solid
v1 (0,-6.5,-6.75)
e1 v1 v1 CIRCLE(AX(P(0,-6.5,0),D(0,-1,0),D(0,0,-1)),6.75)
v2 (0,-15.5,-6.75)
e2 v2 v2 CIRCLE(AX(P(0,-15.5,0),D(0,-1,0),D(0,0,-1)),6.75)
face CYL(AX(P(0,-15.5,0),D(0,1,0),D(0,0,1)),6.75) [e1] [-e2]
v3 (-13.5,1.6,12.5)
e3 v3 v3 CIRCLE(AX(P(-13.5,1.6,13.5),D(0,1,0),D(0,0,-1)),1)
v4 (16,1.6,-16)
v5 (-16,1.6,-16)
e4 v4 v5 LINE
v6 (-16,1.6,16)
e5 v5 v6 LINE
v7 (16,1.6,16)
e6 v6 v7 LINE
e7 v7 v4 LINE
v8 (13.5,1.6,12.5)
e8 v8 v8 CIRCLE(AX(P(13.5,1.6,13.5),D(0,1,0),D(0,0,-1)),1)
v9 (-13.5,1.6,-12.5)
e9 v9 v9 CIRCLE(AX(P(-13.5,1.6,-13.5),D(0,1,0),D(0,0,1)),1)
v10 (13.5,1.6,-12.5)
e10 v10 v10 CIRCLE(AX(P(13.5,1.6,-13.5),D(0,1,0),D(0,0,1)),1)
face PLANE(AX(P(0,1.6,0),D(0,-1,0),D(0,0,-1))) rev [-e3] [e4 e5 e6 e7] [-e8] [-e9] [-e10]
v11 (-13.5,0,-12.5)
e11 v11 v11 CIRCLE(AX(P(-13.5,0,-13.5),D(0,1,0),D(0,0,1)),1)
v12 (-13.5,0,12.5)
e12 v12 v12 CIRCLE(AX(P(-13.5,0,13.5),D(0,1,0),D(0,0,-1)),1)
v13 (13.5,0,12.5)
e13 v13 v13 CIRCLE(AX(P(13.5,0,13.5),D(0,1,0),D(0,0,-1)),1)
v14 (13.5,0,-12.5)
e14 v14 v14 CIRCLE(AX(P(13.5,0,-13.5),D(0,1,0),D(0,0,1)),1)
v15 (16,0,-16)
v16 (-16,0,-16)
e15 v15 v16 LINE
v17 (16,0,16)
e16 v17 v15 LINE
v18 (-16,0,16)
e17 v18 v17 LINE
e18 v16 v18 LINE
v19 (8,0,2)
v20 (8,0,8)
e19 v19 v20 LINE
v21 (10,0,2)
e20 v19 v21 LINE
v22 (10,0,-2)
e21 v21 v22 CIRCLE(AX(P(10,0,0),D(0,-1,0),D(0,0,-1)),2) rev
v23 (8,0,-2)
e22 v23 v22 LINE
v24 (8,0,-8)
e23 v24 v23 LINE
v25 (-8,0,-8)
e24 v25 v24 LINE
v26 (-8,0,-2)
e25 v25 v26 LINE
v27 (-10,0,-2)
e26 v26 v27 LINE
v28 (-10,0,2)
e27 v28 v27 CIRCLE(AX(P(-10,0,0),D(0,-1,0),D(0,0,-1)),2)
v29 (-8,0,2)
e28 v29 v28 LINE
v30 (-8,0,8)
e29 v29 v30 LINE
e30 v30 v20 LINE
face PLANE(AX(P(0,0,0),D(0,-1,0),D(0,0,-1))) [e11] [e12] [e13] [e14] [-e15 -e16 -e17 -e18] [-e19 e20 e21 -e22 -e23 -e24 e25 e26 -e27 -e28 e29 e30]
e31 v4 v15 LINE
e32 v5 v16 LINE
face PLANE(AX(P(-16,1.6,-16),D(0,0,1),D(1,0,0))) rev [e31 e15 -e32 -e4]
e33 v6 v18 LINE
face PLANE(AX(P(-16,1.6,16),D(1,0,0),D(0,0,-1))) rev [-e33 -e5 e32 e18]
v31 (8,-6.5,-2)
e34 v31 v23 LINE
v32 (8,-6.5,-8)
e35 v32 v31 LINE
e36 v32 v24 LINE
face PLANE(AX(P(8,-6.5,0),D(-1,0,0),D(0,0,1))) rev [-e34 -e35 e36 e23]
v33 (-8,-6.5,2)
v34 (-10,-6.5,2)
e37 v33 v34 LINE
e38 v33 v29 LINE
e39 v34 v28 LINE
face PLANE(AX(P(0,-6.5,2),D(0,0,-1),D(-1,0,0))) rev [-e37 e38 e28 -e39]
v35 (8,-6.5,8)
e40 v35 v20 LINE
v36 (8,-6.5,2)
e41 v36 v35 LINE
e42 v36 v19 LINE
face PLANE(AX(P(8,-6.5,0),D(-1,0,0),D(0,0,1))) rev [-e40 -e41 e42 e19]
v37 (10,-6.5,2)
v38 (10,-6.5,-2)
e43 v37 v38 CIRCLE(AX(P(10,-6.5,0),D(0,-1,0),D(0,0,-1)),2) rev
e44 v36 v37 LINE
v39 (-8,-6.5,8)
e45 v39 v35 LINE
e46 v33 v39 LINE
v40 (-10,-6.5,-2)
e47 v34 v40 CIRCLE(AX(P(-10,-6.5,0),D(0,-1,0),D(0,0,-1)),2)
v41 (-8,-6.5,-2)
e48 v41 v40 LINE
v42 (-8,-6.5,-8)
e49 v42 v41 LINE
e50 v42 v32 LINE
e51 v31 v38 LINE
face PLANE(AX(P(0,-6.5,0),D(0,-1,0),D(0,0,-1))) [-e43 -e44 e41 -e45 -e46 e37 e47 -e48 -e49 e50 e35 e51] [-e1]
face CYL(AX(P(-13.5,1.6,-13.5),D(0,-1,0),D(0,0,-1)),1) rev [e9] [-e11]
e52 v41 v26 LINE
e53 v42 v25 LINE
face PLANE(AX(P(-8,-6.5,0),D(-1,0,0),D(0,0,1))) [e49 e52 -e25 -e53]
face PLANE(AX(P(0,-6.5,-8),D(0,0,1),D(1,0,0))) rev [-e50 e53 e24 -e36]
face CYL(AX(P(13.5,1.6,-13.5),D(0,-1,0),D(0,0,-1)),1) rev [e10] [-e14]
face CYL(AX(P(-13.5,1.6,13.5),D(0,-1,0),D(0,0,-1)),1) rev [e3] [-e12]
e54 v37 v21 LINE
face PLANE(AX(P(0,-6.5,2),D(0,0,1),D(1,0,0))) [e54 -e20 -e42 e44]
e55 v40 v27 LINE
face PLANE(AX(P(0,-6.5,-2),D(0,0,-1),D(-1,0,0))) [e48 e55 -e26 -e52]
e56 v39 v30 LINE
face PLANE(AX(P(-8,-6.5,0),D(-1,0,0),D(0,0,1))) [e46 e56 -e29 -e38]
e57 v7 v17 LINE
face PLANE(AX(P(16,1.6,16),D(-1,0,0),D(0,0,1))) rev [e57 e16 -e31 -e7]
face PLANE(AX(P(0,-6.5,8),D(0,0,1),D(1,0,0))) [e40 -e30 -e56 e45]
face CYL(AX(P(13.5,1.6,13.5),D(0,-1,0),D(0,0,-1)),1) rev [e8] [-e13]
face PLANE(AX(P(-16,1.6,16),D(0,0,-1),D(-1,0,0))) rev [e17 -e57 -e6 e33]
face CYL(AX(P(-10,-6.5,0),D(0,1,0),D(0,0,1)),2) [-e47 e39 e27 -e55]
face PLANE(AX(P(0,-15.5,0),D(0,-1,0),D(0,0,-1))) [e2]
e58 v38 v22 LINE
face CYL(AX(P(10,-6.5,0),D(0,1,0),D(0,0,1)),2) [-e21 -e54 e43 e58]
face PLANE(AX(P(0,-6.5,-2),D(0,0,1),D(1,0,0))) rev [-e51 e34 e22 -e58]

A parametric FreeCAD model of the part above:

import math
import FreeCAD as App
import Part
import Sketcher
Q = App.Units.Quantity


def add_polygon(sketch, points):
    """Adds a closed chain of lines whose ends are joined by coincident constraints."""
    first, n = sketch.GeometryCount, len(points)
    for a, b in zip(points, points[1:] + points[:1]):
        sketch.addGeometry(Part.LineSegment(App.Vector(*a, 0), App.Vector(*b, 0)), False)
    for i in range(n):
        sketch.addConstraint(Sketcher.Constraint("Coincident", first + i, 2, first + (i + 1) % n, 1))

doc = App.newDocument("Part")
body = doc.addObject("PartDesign::Body", "Body")

sketch1 = doc.addObject("Sketcher::SketchObject", "Sketch")
body.addObject(sketch1)
sketch1.AttachmentSupport = (doc.XZ_Plane, [""])
sketch1.MapMode = "FlatFace"
add_polygon(sketch1, [(-16, -16), (-16, 16), (16, 16), (16, -16)])
sketch1.addGeometry(Part.Circle(App.Vector(-13.5, 13.5, 0), App.Vector(0, 0, 1), 1), False)
sketch1.addGeometry(Part.Circle(App.Vector(13.5, 13.5, 0), App.Vector(0, 0, 1), 1), False)
sketch1.addGeometry(Part.Circle(App.Vector(-13.5, -13.5, 0), App.Vector(0, 0, 1), 1), False)
sketch1.addGeometry(Part.Circle(App.Vector(13.5, -13.5, 0), App.Vector(0, 0, 1), 1), False)
sketch1.addConstraint([
    Sketcher.Constraint("Vertical", 0),
    Sketcher.Constraint("Horizontal", 1),
    Sketcher.Constraint("Vertical", 2),
    Sketcher.Constraint("Horizontal", 3),
    Sketcher.Constraint("Equal", 4, 5),
    Sketcher.Constraint("Equal", 5, 6),
    Sketcher.Constraint("Equal", 6, 7),
    Sketcher.Constraint("Symmetric", 5, 3, 6, 3, -1, 1),
    Sketcher.Constraint("Symmetric", 4, 3, 7, 3, -1, 1),
    Sketcher.Constraint("Symmetric", 0, 2, 2, 2, -1, 1),
    Sketcher.Constraint("Symmetric", 4, 3, 5, 3, -2),
    Sketcher.Constraint("Equal", 3, 0),
    Sketcher.Constraint("Diameter", 4, Q("2 mm")),
    Sketcher.Constraint("DistanceX", 1, 1, 1, 2, Q("32 mm")),
    Sketcher.Constraint("DistanceX", 4, 3, 5, 3, Q("27 mm")),
    Sketcher.Constraint("DistanceY", 6, 3, 4, 3, Q("27 mm")),
])
pad1 = doc.addObject("PartDesign::Pad", "Pad")
body.addObject(pad1)
pad1.Profile = sketch1
pad1.Length = 1.6
pad1.Reversed = True

sketch2 = doc.addObject("Sketcher::SketchObject", "Sketch001")
body.addObject(sketch2)
sketch2.AttachmentSupport = (doc.XZ_Plane, [""])
sketch2.MapMode = "FlatFace"
sketch2.addGeometry([
    Part.LineSegment(App.Vector(-8, -2, 0), App.Vector(-8, -8, 0)),
    Part.LineSegment(App.Vector(-8, -8, 0), App.Vector(8, -8, 0)),
    Part.LineSegment(App.Vector(8, -8, 0), App.Vector(8, -2, 0)),
    Part.LineSegment(App.Vector(8, -2, 0), App.Vector(10, -2, 0)),
    Part.ArcOfCircle(Part.Circle(App.Vector(10, 0, 0), App.Vector(0, 0, 1), 2), math.radians(-90), math.radians(90)),
    Part.LineSegment(App.Vector(10, 2, 0), App.Vector(8, 2, 0)),
    Part.LineSegment(App.Vector(8, 2, 0), App.Vector(8, 8, 0)),
    Part.LineSegment(App.Vector(8, 8, 0), App.Vector(-8, 8, 0)),
    Part.LineSegment(App.Vector(-8, 8, 0), App.Vector(-8, 2, 0)),
    Part.LineSegment(App.Vector(-8, 2, 0), App.Vector(-10, 2, 0)),
    Part.ArcOfCircle(Part.Circle(App.Vector(-10, 0, 0), App.Vector(0, 0, 1), 2), math.radians(90), math.radians(270)),
    Part.LineSegment(App.Vector(-10, -2, 0), App.Vector(-8, -2, 0)),
], False)
sketch2.addConstraint([
    Sketcher.Constraint("Coincident", 0, 2, 1, 1),
    Sketcher.Constraint("Coincident", 1, 2, 2, 1),
    Sketcher.Constraint("Coincident", 2, 2, 3, 1),
    Sketcher.Constraint("Tangent", 3, 2, 4, 1),
    Sketcher.Constraint("Tangent", 4, 2, 5, 1),
    Sketcher.Constraint("Coincident", 5, 2, 6, 1),
    Sketcher.Constraint("Coincident", 6, 2, 7, 1),
    Sketcher.Constraint("Coincident", 7, 2, 8, 1),
    Sketcher.Constraint("Coincident", 8, 2, 9, 1),
    Sketcher.Constraint("Tangent", 9, 2, 10, 1),
    Sketcher.Constraint("Tangent", 10, 2, 11, 1),
    Sketcher.Constraint("Coincident", 11, 2, 0, 1),
    Sketcher.Constraint("Vertical", 0),
    Sketcher.Constraint("Horizontal", 1),
    Sketcher.Constraint("Vertical", 2),
    Sketcher.Constraint("Horizontal", 3),
    Sketcher.Constraint("Horizontal", 5),
    Sketcher.Constraint("Vertical", 6),
    Sketcher.Constraint("Horizontal", 7),
    Sketcher.Constraint("Vertical", 8),
    Sketcher.Constraint("Horizontal", 9),
    Sketcher.Constraint("Horizontal", 11),
    Sketcher.Constraint("Equal", 4, 10),
    Sketcher.Constraint("Symmetric", 4, 3, 10, 3, -1, 1),
    Sketcher.Constraint("Symmetric", 0, 2, 6, 2, -1, 1),
    Sketcher.Constraint("Symmetric", 5, 2, 8, 2, -2),
    Sketcher.Constraint("Vertical", 2, 2, 5, 2),
    Sketcher.Constraint("Radius", 4, Q("2 mm")),
    Sketcher.Constraint("DistanceX", 1, 1, 1, 2, Q("16 mm")),
    Sketcher.Constraint("DistanceX", 3, 1, 3, 2, Q("2 mm")),
    Sketcher.Constraint("DistanceY", 0, 2, 0, 1, Q("6 mm")),
])
pad2 = doc.addObject("PartDesign::Pad", "Pad001")
body.addObject(pad2)
pad2.Profile = sketch2
pad2.Length = 6.5

sketch3 = doc.addObject("Sketcher::SketchObject", "Sketch002")
body.addObject(sketch3)
sketch3.AttachmentSupport = (doc.XZ_Plane, [""])
sketch3.MapMode = "FlatFace"
sketch3.AttachmentOffset = App.Placement(App.Vector(0, 0, 6.5), App.Rotation())
sketch3.addGeometry(Part.Circle(App.Vector(0, 0, 0), App.Vector(0, 0, 1), 6.75), False)
sketch3.addConstraint([
    Sketcher.Constraint("Coincident", 0, 3, -1, 1),
    Sketcher.Constraint("Diameter", 0, Q("13.5 mm")),
])
pad3 = doc.addObject("PartDesign::Pad", "Pad002")
body.addObject(pad3)
pad3.Profile = sketch3
pad3.Length = 9

doc.recompute()
